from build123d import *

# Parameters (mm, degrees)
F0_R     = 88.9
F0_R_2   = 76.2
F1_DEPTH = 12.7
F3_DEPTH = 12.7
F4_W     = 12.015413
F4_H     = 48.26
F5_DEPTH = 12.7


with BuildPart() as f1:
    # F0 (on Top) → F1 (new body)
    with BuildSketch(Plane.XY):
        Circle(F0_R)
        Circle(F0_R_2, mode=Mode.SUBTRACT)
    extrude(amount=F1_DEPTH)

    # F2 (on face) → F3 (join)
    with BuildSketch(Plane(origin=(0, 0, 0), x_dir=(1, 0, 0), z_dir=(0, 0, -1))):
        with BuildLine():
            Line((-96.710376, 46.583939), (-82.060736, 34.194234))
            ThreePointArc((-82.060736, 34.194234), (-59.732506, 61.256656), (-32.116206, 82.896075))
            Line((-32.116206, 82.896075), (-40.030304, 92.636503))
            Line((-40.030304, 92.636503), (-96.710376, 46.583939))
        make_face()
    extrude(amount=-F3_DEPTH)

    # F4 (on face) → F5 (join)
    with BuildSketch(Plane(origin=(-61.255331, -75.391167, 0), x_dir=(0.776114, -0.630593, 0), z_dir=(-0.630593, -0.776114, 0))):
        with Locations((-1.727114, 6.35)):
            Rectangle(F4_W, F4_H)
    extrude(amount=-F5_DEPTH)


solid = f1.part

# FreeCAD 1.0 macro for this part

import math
import FreeCAD as App
import Part
import Sketcher
from FreeCAD import Vector
Q = App.Units.Quantity

doc = App.newDocument("Part")
body = doc.addObject("PartDesign::Body", "Body")

# Sketch on XY plane
sketch1 = doc.addObject("Sketcher::SketchObject", "Sketch")
body.addObject(sketch1)
sketch1.AttachmentSupport = (doc.XY_Plane, [""])
sketch1.MapMode = "FlatFace"
sketch1.addGeometry([
    Part.Circle(Vector(0, 0, 0), Vector(0, 0, 1), 88.9),
    Part.Circle(Vector(0, 0, 0), Vector(0, 0, 1), 76.2),
], False)
sketch1.addConstraint([
    Sketcher.Constraint("Coincident", 0, 3, -1, 1),
    Sketcher.Constraint("Coincident", 1, 3, -1, 1),
    Sketcher.Constraint("Diameter", 0, Q("7 in")),
    Sketcher.Constraint("Diameter", 1, Q("6 in")),
])
pad1 = doc.addObject("PartDesign::Pad", "Pad")
body.addObject(pad1)
pad1.Profile = sketch1
pad1.Length = Q("0.5 in")

# Sketch on XY plane
sketch2 = doc.addObject("Sketcher::SketchObject", "Sketch001")
body.addObject(sketch2)
sketch2.AttachmentSupport = (doc.XY_Plane, [""])
sketch2.MapMode = "FlatFace"
sketch2.addGeometry([
    Part.LineSegment(Vector(-96.710376, -46.583939, 0), Vector(-82.060736, -34.194234, 0)),
    Part.ArcOfCircle(Part.Circle(Vector(53.722532, 55.093331, 0), Vector(0, 0, 1), 162.509585), math.radians(-146.672115), math.radians(-121.884405)),
    Part.LineSegment(Vector(-32.116206, -82.896075, 0), Vector(-40.030304, -92.636503, 0)),
    Part.LineSegment(Vector(-40.030304, -92.636503, 0), Vector(-96.710376, -46.583939, 0)),
], False)
sketch2.addConstraint([
    Sketcher.Constraint("Coincident", 0, 2, 1, 1),
    Sketcher.Constraint("Coincident", 1, 2, 2, 1),
    Sketcher.Constraint("Coincident", 2, 2, 3, 1),
    Sketcher.Constraint("Coincident", 3, 2, 0, 1),
    Sketcher.Constraint("Perpendicular", 2, 3),
    Sketcher.Constraint("Radius", 1, Q("162.509585 mm")),
    Sketcher.Constraint("Distance", 0, Q("19.186369 mm")),
    Sketcher.Constraint("DistanceX", -1, 1, 1, 3, Q("53.722532 mm")),
    Sketcher.Constraint("DistanceY", -1, 1, 1, 3, Q("55.093331 mm")),
    Sketcher.Constraint("DistanceY", 3, 2, -1, 1, Q("46.583939 mm")),
    Sketcher.Constraint("DistanceX", 0, 2, 1, 2, Q("49.94453 mm")),
    Sketcher.Constraint("DistanceY", 1, 2, 0, 2, Q("48.701841 mm")),
    Sketcher.Constraint("DistanceY", 2, 2, 0, 2, Q("58.442269 mm")),
])
pad2 = doc.addObject("PartDesign::Pad", "Pad001")
body.addObject(pad2)
pad2.Profile = sketch2
pad2.Length = Q("0.5 in")

# Sketch on an angled plane
sketch3 = doc.addObject("Sketcher::SketchObject", "Sketch002")
body.addObject(sketch3)
sketch3.Placement = App.Placement(Vector(-61.255331, -75.391167, 0), App.Rotation(Vector(0.776113817, -0.630592851, 0), Vector(0, 0, 1.000000001), Vector(-0.630592851, -0.776113817, 0), "ZXY"))
sketch3.addGeometry([
    Part.LineSegment(Vector(-7.734821, 30.48, 0), Vector(-7.734821, -17.78, 0)),
    Part.LineSegment(Vector(-7.734821, -17.78, 0), Vector(4.280593, -17.78, 0)),
    Part.LineSegment(Vector(4.280593, -17.78, 0), Vector(4.280593, 30.48, 0)),
    Part.LineSegment(Vector(4.280593, 30.48, 0), Vector(-7.734821, 30.48, 0)),
], False)
sketch3.addConstraint([
    Sketcher.Constraint("Coincident", 0, 2, 1, 1),
    Sketcher.Constraint("Coincident", 1, 2, 2, 1),
    Sketcher.Constraint("Coincident", 2, 2, 3, 1),
    Sketcher.Constraint("Coincident", 3, 2, 0, 1),
    Sketcher.Constraint("Vertical", 0),
    Sketcher.Constraint("Horizontal", 1),
    Sketcher.Constraint("Vertical", 2),
    Sketcher.Constraint("Horizontal", 3),
    Sketcher.Constraint("DistanceY", 0, 2, 0, 1, Q("1.9 in")),
    Sketcher.Constraint("DistanceY", 0, 2, -1, 1, Q("0.7 in")),
    Sketcher.Constraint("DistanceX", 1, 1, 1, 2, Q("12.015413 mm")),
    Sketcher.Constraint("DistanceX", 0, 2, -1, 1, Q("7.734821 mm")),
])
pad3 = doc.addObject("PartDesign::Pad", "Pad002")
body.addObject(pad3)
pad3.Profile = sketch3
pad3.Length = Q("0.5 in")
pad3.Reversed = True

doc.recompute()
